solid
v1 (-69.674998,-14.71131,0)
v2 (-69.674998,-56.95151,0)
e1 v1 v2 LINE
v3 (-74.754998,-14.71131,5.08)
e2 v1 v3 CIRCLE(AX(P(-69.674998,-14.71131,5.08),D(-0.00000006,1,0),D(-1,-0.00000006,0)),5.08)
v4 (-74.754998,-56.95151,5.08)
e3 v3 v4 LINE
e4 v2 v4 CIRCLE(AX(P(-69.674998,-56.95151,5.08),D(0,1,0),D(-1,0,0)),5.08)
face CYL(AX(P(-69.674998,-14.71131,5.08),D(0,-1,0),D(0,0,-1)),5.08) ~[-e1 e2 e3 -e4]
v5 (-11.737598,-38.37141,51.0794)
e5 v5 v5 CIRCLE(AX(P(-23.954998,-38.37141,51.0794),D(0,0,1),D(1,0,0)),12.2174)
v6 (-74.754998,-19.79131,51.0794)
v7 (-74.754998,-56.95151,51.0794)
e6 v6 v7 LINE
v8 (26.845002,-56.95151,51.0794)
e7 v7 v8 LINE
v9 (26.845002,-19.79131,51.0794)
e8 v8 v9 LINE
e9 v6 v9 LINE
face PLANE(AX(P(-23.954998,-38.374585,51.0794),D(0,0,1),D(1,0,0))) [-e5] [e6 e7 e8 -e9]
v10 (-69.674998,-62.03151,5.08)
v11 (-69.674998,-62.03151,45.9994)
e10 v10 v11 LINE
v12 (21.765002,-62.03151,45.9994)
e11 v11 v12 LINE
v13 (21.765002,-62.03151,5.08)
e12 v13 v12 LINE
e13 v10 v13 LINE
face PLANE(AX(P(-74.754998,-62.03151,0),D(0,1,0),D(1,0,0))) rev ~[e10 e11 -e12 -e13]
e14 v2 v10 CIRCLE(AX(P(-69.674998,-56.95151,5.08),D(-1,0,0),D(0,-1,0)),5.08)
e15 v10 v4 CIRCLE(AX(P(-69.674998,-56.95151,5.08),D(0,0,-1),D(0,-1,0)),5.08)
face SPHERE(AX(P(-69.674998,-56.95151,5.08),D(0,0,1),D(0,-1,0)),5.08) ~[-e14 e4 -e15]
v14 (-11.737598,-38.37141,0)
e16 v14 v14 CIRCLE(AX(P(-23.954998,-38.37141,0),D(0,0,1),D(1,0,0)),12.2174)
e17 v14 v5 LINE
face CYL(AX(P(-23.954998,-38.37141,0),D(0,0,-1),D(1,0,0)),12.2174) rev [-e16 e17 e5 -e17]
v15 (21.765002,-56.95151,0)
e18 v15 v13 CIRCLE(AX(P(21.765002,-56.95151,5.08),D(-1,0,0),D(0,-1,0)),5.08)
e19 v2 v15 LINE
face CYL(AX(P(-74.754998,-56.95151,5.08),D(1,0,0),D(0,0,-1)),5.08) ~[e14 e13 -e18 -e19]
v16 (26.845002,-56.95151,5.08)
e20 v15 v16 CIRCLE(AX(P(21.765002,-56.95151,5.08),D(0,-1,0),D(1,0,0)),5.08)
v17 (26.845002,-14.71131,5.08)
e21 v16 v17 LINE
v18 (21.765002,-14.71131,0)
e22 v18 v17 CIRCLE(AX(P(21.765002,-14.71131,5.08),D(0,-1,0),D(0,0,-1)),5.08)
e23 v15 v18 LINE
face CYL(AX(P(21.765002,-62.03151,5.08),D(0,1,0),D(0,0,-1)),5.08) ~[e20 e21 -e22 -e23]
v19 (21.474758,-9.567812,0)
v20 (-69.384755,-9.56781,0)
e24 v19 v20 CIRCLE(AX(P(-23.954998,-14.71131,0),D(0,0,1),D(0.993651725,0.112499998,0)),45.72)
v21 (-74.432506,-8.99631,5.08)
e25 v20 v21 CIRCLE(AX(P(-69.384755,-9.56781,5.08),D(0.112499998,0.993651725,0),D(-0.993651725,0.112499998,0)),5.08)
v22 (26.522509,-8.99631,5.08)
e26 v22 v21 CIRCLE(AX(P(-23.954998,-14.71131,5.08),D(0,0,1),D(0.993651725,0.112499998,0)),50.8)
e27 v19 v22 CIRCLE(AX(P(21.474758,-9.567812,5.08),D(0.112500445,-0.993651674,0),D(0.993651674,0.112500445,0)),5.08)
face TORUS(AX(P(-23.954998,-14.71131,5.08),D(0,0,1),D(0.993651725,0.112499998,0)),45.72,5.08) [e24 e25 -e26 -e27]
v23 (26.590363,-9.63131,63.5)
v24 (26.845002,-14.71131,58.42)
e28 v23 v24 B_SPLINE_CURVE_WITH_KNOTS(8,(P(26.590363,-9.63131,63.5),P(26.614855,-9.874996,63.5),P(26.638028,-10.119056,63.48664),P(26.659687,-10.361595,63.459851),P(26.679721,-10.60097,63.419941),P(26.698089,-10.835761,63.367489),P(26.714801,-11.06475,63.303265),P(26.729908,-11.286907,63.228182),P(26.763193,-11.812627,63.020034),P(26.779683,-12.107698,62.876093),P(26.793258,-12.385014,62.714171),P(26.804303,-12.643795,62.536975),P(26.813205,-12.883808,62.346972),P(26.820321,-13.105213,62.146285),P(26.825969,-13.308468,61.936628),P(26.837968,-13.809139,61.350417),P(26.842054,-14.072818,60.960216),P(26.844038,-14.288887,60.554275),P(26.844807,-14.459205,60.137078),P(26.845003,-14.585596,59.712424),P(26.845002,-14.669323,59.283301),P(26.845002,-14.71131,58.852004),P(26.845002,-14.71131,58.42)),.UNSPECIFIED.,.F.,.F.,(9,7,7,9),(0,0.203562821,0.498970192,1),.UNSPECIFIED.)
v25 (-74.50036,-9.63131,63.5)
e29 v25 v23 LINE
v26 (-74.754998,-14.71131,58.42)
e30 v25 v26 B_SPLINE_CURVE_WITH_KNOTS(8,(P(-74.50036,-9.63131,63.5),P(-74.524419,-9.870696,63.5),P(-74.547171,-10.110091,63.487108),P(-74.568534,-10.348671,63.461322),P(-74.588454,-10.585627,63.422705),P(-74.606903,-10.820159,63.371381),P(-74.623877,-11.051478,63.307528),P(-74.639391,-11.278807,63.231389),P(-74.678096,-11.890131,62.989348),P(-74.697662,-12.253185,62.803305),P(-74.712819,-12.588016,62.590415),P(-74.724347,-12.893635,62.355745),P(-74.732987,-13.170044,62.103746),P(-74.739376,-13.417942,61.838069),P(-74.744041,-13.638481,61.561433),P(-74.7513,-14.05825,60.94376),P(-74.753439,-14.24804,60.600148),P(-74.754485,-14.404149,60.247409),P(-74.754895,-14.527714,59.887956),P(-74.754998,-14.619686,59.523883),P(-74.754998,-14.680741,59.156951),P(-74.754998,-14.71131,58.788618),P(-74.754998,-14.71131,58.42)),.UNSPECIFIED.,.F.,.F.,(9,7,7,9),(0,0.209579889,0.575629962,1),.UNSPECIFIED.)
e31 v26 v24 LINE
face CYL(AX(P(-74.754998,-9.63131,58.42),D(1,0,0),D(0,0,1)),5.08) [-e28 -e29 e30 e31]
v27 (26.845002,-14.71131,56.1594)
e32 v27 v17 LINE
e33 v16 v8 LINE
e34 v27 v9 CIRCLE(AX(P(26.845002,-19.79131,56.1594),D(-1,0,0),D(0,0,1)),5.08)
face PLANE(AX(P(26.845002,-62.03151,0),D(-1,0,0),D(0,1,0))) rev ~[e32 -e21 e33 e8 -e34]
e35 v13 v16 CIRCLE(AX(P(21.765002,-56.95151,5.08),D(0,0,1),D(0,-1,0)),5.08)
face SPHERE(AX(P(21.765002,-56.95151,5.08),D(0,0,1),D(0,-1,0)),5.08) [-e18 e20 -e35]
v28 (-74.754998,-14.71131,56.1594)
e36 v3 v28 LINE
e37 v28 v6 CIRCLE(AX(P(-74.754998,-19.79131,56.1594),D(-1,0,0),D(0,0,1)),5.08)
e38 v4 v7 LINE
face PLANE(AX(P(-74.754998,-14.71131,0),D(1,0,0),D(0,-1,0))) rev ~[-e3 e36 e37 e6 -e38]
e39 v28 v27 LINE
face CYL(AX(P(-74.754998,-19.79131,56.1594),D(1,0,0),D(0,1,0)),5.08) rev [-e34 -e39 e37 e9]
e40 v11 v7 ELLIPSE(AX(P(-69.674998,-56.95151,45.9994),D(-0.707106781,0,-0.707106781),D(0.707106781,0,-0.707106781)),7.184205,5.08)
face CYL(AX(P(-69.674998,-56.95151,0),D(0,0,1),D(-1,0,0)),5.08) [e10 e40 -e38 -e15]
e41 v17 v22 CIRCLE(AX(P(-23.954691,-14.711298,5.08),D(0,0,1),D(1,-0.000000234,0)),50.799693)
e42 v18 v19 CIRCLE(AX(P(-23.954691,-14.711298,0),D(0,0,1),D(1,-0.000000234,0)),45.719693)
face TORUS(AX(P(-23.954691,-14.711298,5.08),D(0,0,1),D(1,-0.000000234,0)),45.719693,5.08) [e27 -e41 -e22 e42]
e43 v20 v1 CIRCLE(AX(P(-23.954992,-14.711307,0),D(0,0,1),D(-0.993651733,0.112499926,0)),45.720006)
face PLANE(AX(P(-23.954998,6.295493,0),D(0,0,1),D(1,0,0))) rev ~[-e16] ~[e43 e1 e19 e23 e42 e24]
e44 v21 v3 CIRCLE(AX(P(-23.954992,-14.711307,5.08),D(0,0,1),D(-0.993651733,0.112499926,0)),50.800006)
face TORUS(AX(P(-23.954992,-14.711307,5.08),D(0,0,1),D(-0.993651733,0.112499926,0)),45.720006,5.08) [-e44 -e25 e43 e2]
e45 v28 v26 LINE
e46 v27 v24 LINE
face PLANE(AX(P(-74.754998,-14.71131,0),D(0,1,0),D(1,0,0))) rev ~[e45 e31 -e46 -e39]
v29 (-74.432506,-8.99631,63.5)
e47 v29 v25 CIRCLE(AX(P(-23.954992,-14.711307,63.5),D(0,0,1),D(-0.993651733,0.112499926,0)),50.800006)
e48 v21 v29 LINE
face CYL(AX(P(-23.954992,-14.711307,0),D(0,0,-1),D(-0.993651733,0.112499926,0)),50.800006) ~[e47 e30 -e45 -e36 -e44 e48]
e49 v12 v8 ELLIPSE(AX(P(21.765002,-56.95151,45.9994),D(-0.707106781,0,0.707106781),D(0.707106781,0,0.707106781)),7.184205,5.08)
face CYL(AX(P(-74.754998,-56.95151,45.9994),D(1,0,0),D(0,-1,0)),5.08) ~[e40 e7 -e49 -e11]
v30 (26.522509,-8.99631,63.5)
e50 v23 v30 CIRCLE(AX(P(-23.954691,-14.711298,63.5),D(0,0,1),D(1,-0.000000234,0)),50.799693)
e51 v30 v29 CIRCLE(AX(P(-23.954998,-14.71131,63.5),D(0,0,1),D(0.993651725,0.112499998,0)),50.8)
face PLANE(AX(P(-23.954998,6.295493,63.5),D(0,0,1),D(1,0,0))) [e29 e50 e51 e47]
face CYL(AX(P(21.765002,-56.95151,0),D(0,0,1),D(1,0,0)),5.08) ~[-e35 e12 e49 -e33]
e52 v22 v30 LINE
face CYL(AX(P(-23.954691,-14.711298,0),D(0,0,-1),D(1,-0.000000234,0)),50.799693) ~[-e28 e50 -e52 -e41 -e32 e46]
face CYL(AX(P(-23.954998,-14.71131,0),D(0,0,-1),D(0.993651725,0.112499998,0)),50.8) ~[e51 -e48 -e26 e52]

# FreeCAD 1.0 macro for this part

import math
import FreeCAD as App
import Part
import Sketcher
from FreeCAD import Vector
Q = App.Units.Quantity


def edges_at(feature, points):
    """Names of the edges that pass closest to the given points."""
    edges = feature.Shape.Edges
    near = lambda p: min(range(len(edges)), key=lambda i: edges[i].distToShape(Part.Vertex(*p))[0])
    return sorted({f"Edge{near(p) + 1}" for p in points})


def add_polygon(sketch, points):
    """Adds a closed chain of lines whose ends are joined by coincident constraints."""
    first, n = sketch.GeometryCount, len(points)
    for a, b in zip(points, points[1:] + points[:1]):
        sketch.addGeometry(Part.LineSegment(App.Vector(*a, 0), App.Vector(*b, 0)), False)
    for i in range(n):
        sketch.addConstraint(Sketcher.Constraint("Coincident", first + i, 2, first + (i + 1) % n, 1))

doc = App.newDocument("Part")
body = doc.addObject("PartDesign::Body", "Body")

sketch1 = doc.addObject("Sketcher::SketchObject", "Sketch")
body.addObject(sketch1)
sketch1.AttachmentSupport = (doc.XY_Plane, [""])
sketch1.MapMode = "FlatFace"
add_polygon(sketch1, [(27, -15), (-75, -15), (-75, -62), (27, -62)])
sketch1.addGeometry(Part.Circle(Vector(-24, -38, 0), Vector(0, 0, 1), 12), False)
sketch1.addConstraint([
    Sketcher.Constraint("Horizontal", 0),
    Sketcher.Constraint("Vertical", 1),
    Sketcher.Constraint("Horizontal", 2),
    Sketcher.Constraint("Vertical", 3),
    Sketcher.Constraint("DistanceX", 0, 2, 0, 1, Q("4 in")),
    Sketcher.Constraint("Diameter", 4, Q("0.962 in")),
    Sketcher.Constraint("DistanceX", 0, 2, 4, 3, Q("2 in")),
    Sketcher.Constraint("DistanceY", 1, 2, 1, 1, Q("1.863 in")),
    Sketcher.Constraint("DistanceY", 4, 3, 0, 2, Q("0.9315 in")),
    Sketcher.Constraint("DistanceX", 4, 3, -1, 1, Q("23.954998 mm")),
    Sketcher.Constraint("DistanceY", 4, 3, -1, 1, Q("38.37141 mm")),
])
pad1 = doc.addObject("PartDesign::Pad", "Pad")
body.addObject(pad1)
pad1.Profile = sketch1
pad1.Length = Q("2.011 in")

sketch2 = doc.addObject("Sketcher::SketchObject", "Sketch001")
body.addObject(sketch2)
sketch2.AttachmentSupport = (doc.XY_Plane, [""])
sketch2.MapMode = "FlatFace"
sketch2.addGeometry([
    Part.ArcOfCircle(Part.Circle(Vector(-23.954998, -14.71131, 0), Vector(0, 0, 1), 50.8), math.radians(6.45945), math.radians(173.54055)),
    Part.ArcOfCircle(Part.Circle(Vector(-23.954992, -14.711307, 0), Vector(0, 0, 1), 50.800006), math.radians(173.540554), math.radians(180.000003)),
    Part.LineSegment(Vector(-74.754998, -14.71131, 0), Vector(26.845002, -14.71131, 0)),
    Part.ArcOfCircle(Part.Circle(Vector(-23.954691, -14.711298, 0), Vector(0, 0, 1), 50.799693), math.radians(-0.000013), math.radians(6.459475)),
], False)
sketch2.addConstraint([
    Sketcher.Constraint("Coincident", 0, 2, 1, 1),
    Sketcher.Constraint("Coincident", 1, 2, 2, 1),
    Sketcher.Constraint("Coincident", 2, 2, 3, 1),
    Sketcher.Constraint("Coincident", 3, 2, 0, 1),
    Sketcher.Constraint("Horizontal", 2),
    Sketcher.Constraint("Coincident", 1, 3, 0, 3),
    Sketcher.Constraint("Radius", 0, Q("2 in")),
    Sketcher.Constraint("DistanceX", 2, 1, 2, 2, Q("4 in")),
    Sketcher.Constraint("DistanceY", 0, 3, 0, 2, Q("0.225 in")),
    Sketcher.Constraint("DistanceY", 1, 2, 0, 2, Q("0.225 in")),
    Sketcher.Constraint("DistanceY", 2, 2, 3, 2, Q("0.225 in")),
    Sketcher.Constraint("Radius", 3, Q("50.799693 mm")),
    Sketcher.Constraint("DistanceX", 0, 3, -1, 1, Q("23.954998 mm")),
    Sketcher.Constraint("DistanceY", 3, 3, -1, 1, Q("14.711298 mm")),
])
pad2 = doc.addObject("PartDesign::Pad", "Pad001")
body.addObject(pad2)
pad2.Profile = sketch2
pad2.Length = Q("2.5 in")
doc.recompute()

fillet = doc.addObject("PartDesign::Fillet", "Fillet")
body.addObject(fillet)
fillet.Base = (pad2, edges_at(pad2, [
    (-23.955, -62.032, 51.079),
    (-23.955, -14.711, 51.079),
    (-23.955, -14.711, 63.5),
    (26.845, -62.032, 25.54),
    (-74.755, -62.032, 25.54),
    (-23.955, -62.032, 0),
    (26.845, -38.371, 0),
]))
fillet.Radius = Q("0.2 in")

doc.recompute()
